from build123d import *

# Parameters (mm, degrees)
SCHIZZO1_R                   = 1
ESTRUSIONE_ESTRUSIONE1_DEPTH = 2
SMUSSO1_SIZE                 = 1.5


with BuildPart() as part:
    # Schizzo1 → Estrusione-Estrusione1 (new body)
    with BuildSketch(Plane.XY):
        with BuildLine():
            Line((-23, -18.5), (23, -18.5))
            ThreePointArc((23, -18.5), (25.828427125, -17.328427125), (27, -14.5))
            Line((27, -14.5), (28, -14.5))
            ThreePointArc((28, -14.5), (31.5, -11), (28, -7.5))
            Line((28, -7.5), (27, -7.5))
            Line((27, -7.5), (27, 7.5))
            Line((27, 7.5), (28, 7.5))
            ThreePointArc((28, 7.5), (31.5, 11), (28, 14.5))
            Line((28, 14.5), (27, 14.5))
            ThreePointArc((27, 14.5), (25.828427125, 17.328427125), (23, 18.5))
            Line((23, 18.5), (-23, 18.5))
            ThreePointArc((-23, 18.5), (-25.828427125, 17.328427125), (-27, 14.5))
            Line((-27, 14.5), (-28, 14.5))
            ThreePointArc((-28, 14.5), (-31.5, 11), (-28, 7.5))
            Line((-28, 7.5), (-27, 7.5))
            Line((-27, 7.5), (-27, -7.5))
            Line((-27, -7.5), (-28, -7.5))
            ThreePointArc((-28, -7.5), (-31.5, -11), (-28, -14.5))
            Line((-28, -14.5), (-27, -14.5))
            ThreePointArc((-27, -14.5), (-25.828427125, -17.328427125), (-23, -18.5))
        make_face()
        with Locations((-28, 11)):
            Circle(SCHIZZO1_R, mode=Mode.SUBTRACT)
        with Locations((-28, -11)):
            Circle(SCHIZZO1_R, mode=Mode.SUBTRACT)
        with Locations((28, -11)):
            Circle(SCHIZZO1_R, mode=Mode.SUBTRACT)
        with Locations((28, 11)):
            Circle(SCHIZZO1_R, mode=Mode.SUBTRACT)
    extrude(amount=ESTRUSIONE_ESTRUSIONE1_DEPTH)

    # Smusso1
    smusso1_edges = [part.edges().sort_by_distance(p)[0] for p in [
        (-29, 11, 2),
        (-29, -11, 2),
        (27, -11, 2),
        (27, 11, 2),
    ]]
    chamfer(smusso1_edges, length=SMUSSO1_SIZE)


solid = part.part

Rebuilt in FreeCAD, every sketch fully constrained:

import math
import FreeCAD as App
import Part
import Sketcher
from FreeCAD import Vector
Q = App.Units.Quantity


def edges_at(feature, points):
    """Names of the edges that pass closest to the given points."""
    edges = feature.Shape.Edges
    near = lambda p: min(range(len(edges)), key=lambda i: edges[i].distToShape(Part.Vertex(*p))[0])
    return sorted({f"Edge{near(p) + 1}" for p in points})

doc = App.newDocument("Part")
params = doc.addObject("Spreadsheet::Sheet", "Params")
for row, (alias, value) in enumerate([
    ("sketch1_diameter", "2 mm"),
    ("sketch1_radius", "4 mm"),
    ("sketch1_radius2", "3.5 mm"),
    ("sketch1_width", "46 mm"),
    ("sketch1_width2", "1 mm"),
    ("pad1_length", "2 mm"),
    ("chamfer_size", "1.5 mm"),
], start=1):
    params.set(f"A{row}", alias)
    params.set(f"B{row}", "=" + value)
    params.setAlias(f"B{row}", alias)

body = doc.addObject("PartDesign::Body", "Body")

# Sketch on XY plane
sketch1 = doc.addObject("Sketcher::SketchObject", "Sketch")
body.addObject(sketch1)
sketch1.AttachmentSupport = (doc.XY_Plane, [""])
sketch1.MapMode = "FlatFace"
sketch1.addGeometry([
    Part.LineSegment(Vector(-23, -18.5, 0), Vector(23, -18.5, 0)),  # 0
    Part.ArcOfCircle(Part.Circle(Vector(23, -14.5, 0), Vector(0, 0, 1), 4), math.radians(-90), math.radians(0)),  # 1
    Part.LineSegment(Vector(27, -14.5, 0), Vector(28, -14.5, 0)),  # 2
    Part.ArcOfCircle(Part.Circle(Vector(28, -11, 0), Vector(0, 0, 1), 3.5), math.radians(-90), math.radians(90)),  # 3
    Part.LineSegment(Vector(28, -7.5, 0), Vector(27, -7.5, 0)),  # 4
    Part.LineSegment(Vector(27, -7.5, 0), Vector(27, 7.5, 0)),  # 5
    Part.LineSegment(Vector(27, 7.5, 0), Vector(28, 7.5, 0)),  # 6
    Part.ArcOfCircle(Part.Circle(Vector(28, 11, 0), Vector(0, 0, 1), 3.5), math.radians(-90), math.radians(90)),  # 7
    Part.LineSegment(Vector(28, 14.5, 0), Vector(27, 14.5, 0)),  # 8
    Part.ArcOfCircle(Part.Circle(Vector(23, 14.5, 0), Vector(0, 0, 1), 4), math.radians(0), math.radians(90)),  # 9
    Part.LineSegment(Vector(23, 18.5, 0), Vector(-23, 18.5, 0)),  # 10
    Part.ArcOfCircle(Part.Circle(Vector(-23, 14.5, 0), Vector(0, 0, 1), 4), math.radians(90), math.radians(180)),  # 11
    Part.LineSegment(Vector(-27, 14.5, 0), Vector(-28, 14.5, 0)),  # 12
    Part.ArcOfCircle(Part.Circle(Vector(-28, 11, 0), Vector(0, 0, 1), 3.5), math.radians(90), math.radians(270)),  # 13
    Part.LineSegment(Vector(-28, 7.5, 0), Vector(-27, 7.5, 0)),  # 14
    Part.LineSegment(Vector(-27, 7.5, 0), Vector(-27, -7.5, 0)),  # 15
    Part.LineSegment(Vector(-27, -7.5, 0), Vector(-28, -7.5, 0)),  # 16
    Part.ArcOfCircle(Part.Circle(Vector(-28, -11, 0), Vector(0, 0, 1), 3.5), math.radians(90), math.radians(270)),  # 17
    Part.LineSegment(Vector(-28, -14.5, 0), Vector(-27, -14.5, 0)),  # 18
    Part.ArcOfCircle(Part.Circle(Vector(-23, -14.5, 0), Vector(0, 0, 1), 4), math.radians(180), math.radians(270)),  # 19
    Part.Circle(Vector(-28, -11, 0), Vector(0, 0, 1), 1),  # 20
    Part.Circle(Vector(28, -11, 0), Vector(0, 0, 1), 1),  # 21
    Part.Circle(Vector(-28, 11, 0), Vector(0, 0, 1), 1),  # 22
    Part.Circle(Vector(28, 11, 0), Vector(0, 0, 1), 1),  # 23
], False)
sketch1.addConstraint([
    Sketcher.Constraint("Tangent", 0, 2, 1, 1),
    Sketcher.Constraint("Coincident", 1, 2, 2, 1),
    Sketcher.Constraint("Tangent", 2, 2, 3, 1),
    Sketcher.Constraint("Tangent", 3, 2, 4, 1),
    Sketcher.Constraint("Coincident", 4, 2, 5, 1),
    Sketcher.Constraint("Coincident", 5, 2, 6, 1),
    Sketcher.Constraint("Tangent", 6, 2, 7, 1),
    Sketcher.Constraint("Tangent", 7, 2, 8, 1),
    Sketcher.Constraint("Coincident", 8, 2, 9, 1),
    Sketcher.Constraint("Tangent", 9, 2, 10, 1),
    Sketcher.Constraint("Tangent", 10, 2, 11, 1),
    Sketcher.Constraint("Coincident", 11, 2, 12, 1),
    Sketcher.Constraint("Tangent", 12, 2, 13, 1),
    Sketcher.Constraint("Tangent", 13, 2, 14, 1),
    Sketcher.Constraint("Coincident", 14, 2, 15, 1),
    Sketcher.Constraint("Coincident", 15, 2, 16, 1),
    Sketcher.Constraint("Tangent", 16, 2, 17, 1),
    Sketcher.Constraint("Tangent", 17, 2, 18, 1),
    Sketcher.Constraint("Coincident", 18, 2, 19, 1),
    Sketcher.Constraint("Tangent", 19, 2, 0, 1),
    Sketcher.Constraint("Horizontal", 0),
    Sketcher.Constraint("Horizontal", 2),
    Sketcher.Constraint("Horizontal", 4),
    Sketcher.Constraint("Vertical", 5),
    Sketcher.Constraint("Horizontal", 6),
    Sketcher.Constraint("Horizontal", 8),
    Sketcher.Constraint("Horizontal", 10),
    Sketcher.Constraint("Horizontal", 12),
    Sketcher.Constraint("Horizontal", 14),
    Sketcher.Constraint("Vertical", 15),
    Sketcher.Constraint("Horizontal", 16),
    Sketcher.Constraint("Horizontal", 18),
    Sketcher.Constraint("Coincident", 20, 3, 17, 3),
    Sketcher.Constraint("Coincident", 21, 3, 3, 3),
    Sketcher.Constraint("Coincident", 22, 3, 13, 3),
    Sketcher.Constraint("Coincident", 23, 3, 7, 3),
    Sketcher.Constraint("Equal", 3, 7),
    Sketcher.Constraint("Equal", 1, 9),
    Sketcher.Constraint("Equal", 9, 11),
    Sketcher.Constraint("Equal", 7, 13),
    Sketcher.Constraint("Equal", 13, 17),
    Sketcher.Constraint("Equal", 11, 19),
    Sketcher.Constraint("Equal", 20, 21),
    Sketcher.Constraint("Equal", 21, 22),
    Sketcher.Constraint("Equal", 22, 23),
    Sketcher.Constraint("Symmetric", 1, 3, 11, 3, -1, 1),
    Sketcher.Constraint("Symmetric", 3, 3, 13, 3, -1, 1),
    Sketcher.Constraint("Symmetric", 7, 3, 17, 3, -1, 1),
    Sketcher.Constraint("Symmetric", 7, 3, 13, 3, -2),
    Sketcher.Constraint("Horizontal", 19, 3, 1, 2),
    Sketcher.Constraint("Vertical", 1, 3, 9, 3),
    Sketcher.Constraint("Vertical", 11, 3, 19, 3),
    Sketcher.Constraint("Vertical", 1, 2, 4, 2),
    Sketcher.Constraint("Vertical", 11, 2, 14, 2),
    Sketcher.Constraint("Diameter", 20, Q("2 mm")),
    Sketcher.Constraint("Radius", 1, Q("4 mm")),
    Sketcher.Constraint("Radius", 3, Q("3.5 mm")),
    Sketcher.Constraint("DistanceX", 0, 1, 0, 2, Q("46 mm")),
    Sketcher.Constraint("DistanceX", 2, 1, 2, 2, Q("1 mm")),
    Sketcher.Constraint("DistanceY", 5, 1, 5, 2, Q("15 mm")),
])
sketch1.setExpression("Constraints[54]", "Params.sketch1_diameter")
sketch1.setExpression("Constraints[55]", "Params.sketch1_radius")
sketch1.setExpression("Constraints[56]", "Params.sketch1_radius2")
sketch1.setExpression("Constraints[57]", "Params.sketch1_width")
sketch1.setExpression("Constraints[58]", "Params.sketch1_width2")
pad1 = doc.addObject("PartDesign::Pad", "Pad")
body.addObject(pad1)
pad1.Profile = sketch1
pad1.setExpression("Length", "Params.pad1_length")
doc.recompute()

chamfer = doc.addObject("PartDesign::Chamfer", "Chamfer")
body.addObject(chamfer)
chamfer.Base = (pad1, edges_at(pad1, [
    (-29, 11, 2),
    (-29, -11, 2),
    (27, -11, 2),
    (27, 11, 2),
]))
chamfer.setExpression("Size", "Params.chamfer_size")

doc.recompute()
